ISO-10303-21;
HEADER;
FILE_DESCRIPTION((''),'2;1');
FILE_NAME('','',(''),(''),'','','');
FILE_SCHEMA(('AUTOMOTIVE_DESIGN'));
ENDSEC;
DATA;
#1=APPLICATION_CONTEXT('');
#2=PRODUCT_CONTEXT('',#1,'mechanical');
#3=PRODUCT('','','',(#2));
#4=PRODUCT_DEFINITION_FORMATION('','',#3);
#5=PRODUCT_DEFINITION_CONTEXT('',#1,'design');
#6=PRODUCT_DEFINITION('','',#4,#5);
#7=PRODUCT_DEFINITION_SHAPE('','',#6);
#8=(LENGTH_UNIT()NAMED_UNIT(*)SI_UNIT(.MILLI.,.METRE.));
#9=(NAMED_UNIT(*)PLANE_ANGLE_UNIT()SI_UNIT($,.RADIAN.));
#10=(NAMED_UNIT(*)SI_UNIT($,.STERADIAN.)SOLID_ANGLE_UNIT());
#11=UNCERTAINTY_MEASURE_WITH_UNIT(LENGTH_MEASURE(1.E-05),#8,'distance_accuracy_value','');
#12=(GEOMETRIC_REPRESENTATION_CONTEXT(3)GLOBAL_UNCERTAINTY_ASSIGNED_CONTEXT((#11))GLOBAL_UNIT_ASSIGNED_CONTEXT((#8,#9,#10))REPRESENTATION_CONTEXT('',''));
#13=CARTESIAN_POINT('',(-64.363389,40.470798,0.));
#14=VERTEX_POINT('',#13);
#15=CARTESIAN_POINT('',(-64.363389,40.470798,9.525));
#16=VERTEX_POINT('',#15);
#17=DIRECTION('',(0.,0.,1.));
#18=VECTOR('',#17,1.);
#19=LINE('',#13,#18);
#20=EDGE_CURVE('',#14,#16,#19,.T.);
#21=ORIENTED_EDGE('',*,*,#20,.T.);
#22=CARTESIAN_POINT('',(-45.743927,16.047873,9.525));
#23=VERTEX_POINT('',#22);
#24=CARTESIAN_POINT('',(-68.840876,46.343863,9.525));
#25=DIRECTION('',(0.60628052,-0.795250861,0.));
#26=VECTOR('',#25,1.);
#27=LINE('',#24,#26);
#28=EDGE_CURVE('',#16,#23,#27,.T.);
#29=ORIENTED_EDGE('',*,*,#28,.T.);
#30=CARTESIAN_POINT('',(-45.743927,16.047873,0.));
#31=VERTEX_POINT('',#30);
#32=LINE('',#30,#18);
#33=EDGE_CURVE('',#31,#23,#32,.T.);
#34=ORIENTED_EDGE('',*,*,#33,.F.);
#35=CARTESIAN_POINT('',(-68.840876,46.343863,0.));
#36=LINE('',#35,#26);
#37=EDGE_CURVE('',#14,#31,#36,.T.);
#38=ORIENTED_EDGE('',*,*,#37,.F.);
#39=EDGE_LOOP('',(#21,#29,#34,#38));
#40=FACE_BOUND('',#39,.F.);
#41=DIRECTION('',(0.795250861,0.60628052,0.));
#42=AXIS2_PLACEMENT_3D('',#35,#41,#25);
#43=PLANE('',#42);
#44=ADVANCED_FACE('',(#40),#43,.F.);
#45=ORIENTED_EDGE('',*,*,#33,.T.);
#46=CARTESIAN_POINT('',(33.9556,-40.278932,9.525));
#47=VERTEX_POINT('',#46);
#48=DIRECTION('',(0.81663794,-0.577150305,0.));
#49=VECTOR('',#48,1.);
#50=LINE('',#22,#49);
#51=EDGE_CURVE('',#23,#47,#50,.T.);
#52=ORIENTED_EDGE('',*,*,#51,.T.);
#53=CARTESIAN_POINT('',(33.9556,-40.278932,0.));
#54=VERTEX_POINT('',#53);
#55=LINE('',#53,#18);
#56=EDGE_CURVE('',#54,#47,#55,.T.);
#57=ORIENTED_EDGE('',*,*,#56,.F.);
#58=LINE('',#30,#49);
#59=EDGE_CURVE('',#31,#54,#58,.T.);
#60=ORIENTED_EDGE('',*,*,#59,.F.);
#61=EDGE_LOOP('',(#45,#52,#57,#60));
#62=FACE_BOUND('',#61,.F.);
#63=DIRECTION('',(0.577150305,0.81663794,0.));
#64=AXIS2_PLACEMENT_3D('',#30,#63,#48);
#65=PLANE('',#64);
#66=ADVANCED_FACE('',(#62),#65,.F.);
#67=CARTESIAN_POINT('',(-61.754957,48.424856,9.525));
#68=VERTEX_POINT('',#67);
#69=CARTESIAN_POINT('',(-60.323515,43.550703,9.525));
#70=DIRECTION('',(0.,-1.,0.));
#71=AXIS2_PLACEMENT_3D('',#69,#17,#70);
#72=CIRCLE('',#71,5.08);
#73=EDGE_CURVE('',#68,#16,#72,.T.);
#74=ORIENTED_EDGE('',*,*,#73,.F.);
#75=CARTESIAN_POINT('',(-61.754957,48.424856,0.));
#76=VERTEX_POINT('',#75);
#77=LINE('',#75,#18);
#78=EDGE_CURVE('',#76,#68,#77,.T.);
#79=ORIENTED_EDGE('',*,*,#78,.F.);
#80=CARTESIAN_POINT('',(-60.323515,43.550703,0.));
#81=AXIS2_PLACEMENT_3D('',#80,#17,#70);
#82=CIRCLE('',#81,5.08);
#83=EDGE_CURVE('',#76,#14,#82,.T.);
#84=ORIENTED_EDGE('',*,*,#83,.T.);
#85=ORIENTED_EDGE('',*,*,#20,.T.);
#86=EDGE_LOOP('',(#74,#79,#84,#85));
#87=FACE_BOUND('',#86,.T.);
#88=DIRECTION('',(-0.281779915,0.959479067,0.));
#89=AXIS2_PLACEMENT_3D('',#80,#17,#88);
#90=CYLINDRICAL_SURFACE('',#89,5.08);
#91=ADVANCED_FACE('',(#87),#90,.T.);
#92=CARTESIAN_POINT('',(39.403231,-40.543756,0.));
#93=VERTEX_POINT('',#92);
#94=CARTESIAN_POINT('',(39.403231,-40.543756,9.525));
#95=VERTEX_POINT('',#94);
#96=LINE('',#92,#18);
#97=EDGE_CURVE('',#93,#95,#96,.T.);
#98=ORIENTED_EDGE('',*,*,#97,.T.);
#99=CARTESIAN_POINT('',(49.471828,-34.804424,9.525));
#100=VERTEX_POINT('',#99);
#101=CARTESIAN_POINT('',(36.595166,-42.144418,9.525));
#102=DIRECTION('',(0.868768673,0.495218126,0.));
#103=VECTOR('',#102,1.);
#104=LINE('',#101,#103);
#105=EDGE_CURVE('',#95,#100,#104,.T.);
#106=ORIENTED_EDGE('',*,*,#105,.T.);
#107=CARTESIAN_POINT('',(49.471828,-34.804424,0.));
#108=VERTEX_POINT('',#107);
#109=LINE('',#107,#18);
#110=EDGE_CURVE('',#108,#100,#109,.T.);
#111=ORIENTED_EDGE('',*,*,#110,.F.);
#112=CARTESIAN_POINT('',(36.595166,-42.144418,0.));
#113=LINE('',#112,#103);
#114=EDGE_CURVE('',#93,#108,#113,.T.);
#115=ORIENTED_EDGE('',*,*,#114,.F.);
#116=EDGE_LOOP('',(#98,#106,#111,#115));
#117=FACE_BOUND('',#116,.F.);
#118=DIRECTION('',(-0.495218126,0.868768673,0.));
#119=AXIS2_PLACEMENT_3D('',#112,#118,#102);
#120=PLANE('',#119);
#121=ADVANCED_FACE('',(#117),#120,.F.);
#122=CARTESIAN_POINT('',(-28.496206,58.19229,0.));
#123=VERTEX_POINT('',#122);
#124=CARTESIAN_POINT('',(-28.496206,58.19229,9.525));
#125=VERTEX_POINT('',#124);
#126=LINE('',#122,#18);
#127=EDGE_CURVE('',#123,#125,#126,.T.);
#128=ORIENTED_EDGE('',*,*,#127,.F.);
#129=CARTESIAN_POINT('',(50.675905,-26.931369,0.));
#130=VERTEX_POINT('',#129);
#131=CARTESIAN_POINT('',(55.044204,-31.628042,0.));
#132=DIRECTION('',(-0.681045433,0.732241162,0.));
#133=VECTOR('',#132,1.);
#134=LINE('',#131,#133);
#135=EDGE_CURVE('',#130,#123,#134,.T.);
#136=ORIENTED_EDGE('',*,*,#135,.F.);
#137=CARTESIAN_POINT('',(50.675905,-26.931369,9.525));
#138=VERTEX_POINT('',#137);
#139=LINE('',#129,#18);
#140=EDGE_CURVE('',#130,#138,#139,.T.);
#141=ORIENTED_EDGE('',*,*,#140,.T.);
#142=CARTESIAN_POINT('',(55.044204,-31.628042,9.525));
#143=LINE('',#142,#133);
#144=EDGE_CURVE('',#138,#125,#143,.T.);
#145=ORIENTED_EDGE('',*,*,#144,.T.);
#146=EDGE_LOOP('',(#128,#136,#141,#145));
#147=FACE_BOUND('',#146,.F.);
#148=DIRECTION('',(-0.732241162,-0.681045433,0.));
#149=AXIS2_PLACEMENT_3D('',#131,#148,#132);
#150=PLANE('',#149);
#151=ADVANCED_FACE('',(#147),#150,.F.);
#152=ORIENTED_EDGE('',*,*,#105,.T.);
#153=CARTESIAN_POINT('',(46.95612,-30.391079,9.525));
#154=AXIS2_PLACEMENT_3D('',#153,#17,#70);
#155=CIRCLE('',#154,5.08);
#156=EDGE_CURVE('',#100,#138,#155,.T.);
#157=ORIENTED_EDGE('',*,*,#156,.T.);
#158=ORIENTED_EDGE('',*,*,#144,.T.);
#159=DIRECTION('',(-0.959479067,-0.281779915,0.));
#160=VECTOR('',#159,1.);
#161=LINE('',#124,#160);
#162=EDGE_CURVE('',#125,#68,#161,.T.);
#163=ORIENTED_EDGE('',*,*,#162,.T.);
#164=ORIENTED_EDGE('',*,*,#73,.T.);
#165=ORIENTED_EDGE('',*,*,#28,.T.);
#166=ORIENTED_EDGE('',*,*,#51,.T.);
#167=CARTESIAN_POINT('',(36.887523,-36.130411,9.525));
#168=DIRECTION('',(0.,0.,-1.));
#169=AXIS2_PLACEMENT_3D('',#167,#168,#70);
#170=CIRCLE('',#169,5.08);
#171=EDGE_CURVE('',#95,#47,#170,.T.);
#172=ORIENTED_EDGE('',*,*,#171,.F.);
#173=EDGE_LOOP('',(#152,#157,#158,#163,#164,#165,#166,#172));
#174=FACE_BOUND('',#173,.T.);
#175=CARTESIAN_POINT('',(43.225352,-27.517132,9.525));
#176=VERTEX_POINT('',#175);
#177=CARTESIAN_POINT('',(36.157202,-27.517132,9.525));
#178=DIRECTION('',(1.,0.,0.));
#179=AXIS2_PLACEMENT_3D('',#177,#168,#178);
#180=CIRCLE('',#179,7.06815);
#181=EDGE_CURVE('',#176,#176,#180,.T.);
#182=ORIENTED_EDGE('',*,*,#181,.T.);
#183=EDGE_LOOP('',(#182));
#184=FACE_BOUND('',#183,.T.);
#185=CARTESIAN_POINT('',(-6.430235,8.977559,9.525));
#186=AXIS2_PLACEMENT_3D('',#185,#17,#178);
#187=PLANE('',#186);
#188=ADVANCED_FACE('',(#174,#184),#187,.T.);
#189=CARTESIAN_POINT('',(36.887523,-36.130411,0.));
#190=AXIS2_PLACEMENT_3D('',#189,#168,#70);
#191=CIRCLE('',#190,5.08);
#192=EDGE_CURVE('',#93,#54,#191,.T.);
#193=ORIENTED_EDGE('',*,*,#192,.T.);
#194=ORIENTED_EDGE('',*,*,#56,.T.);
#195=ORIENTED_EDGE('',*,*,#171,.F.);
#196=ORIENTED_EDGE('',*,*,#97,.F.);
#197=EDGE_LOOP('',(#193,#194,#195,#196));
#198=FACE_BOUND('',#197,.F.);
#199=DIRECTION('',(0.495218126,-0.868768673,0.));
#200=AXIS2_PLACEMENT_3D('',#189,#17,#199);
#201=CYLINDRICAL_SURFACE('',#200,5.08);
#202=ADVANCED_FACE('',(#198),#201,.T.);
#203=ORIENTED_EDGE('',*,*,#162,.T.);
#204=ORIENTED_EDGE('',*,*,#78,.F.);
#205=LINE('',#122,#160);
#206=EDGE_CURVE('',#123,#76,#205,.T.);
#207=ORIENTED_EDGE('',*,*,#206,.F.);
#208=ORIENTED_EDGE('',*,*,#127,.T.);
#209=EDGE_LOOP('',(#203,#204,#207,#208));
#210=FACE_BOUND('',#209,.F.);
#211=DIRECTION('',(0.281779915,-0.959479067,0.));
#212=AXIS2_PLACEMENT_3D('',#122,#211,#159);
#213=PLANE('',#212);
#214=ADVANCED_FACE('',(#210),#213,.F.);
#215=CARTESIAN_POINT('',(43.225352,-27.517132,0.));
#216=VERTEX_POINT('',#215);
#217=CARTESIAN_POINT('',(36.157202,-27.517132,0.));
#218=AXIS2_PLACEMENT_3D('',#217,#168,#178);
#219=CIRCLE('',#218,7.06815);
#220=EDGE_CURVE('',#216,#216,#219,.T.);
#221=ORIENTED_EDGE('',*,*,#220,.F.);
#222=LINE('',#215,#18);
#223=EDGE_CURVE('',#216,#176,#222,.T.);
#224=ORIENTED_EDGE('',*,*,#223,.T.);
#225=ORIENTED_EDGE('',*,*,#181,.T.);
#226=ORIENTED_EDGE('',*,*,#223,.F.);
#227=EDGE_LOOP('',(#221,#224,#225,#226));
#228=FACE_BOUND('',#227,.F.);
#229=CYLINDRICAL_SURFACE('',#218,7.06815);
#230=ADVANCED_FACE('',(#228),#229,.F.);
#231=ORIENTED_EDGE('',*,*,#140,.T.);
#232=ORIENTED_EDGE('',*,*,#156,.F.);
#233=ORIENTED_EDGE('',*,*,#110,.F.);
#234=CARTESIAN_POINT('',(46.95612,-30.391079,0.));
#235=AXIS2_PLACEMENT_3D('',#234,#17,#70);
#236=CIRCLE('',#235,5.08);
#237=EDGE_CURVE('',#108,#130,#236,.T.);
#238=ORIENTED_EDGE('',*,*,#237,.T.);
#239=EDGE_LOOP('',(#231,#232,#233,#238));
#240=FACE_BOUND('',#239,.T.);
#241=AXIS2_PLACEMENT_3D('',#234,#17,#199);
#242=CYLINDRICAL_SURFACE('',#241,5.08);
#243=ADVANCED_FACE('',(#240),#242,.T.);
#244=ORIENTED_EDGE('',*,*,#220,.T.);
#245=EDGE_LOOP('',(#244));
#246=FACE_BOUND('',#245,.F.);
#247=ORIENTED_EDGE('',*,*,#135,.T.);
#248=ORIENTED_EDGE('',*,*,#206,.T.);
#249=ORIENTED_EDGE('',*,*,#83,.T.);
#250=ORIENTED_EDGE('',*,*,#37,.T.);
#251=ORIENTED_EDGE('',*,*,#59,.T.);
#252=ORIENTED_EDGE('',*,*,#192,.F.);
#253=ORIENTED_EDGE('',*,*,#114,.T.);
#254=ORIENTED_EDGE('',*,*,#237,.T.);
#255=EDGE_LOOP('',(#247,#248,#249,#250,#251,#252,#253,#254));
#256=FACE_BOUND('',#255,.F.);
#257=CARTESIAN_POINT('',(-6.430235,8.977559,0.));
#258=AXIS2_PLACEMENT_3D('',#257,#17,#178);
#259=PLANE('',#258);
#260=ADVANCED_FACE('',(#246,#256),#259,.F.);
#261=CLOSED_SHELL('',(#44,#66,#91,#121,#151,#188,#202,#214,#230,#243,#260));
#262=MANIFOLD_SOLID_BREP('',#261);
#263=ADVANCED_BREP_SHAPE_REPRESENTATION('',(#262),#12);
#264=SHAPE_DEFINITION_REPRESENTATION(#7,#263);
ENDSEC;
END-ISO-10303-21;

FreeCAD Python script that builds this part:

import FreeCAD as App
import Part
import Sketcher
Q = App.Units.Quantity


def edges_at(feature, points):
    """Names of the edges that pass closest to the given points."""
    edges = feature.Shape.Edges
    near = lambda p: min(range(len(edges)), key=lambda i: edges[i].distToShape(Part.Vertex(*p))[0])
    return sorted({f"Edge{near(p) + 1}" for p in points})


def add_polygon(sketch, points):
    """Adds a closed chain of lines whose ends are joined by coincident constraints."""
    first, n = sketch.GeometryCount, len(points)
    for a, b in zip(points, points[1:] + points[:1]):
        sketch.addGeometry(Part.LineSegment(App.Vector(*a, 0), App.Vector(*b, 0)), False)
    for i in range(n):
        sketch.addConstraint(Sketcher.Constraint("Coincident", first + i, 2, first + (i + 1) % n, 1))

doc = App.newDocument("Part")
body = doc.addObject("PartDesign::Body", "Body")

sketch1 = body.newObject("Sketcher::SketchObject", "Sketch")
sketch1.AttachmentSupport = (doc.getObject("XY_Plane"), [""])
sketch1.MapMode = "FlatFace"
add_polygon(sketch1, [(37, -42), (55, -32), (-28, 58), (-69, 46), (-46, 16)])
sketch1.addConstraint([
    Sketcher.Constraint("Distance", 1, Q("122.664959 mm")),
    Sketcher.Constraint("DistanceY", -1, 1, 1, 2, Q("58.19229 mm")),
    Sketcher.Constraint("DistanceY", 4, 2, -1, 1, Q("42.144418 mm")),
    Sketcher.Constraint("DistanceX", 1, 2, 0, 2, Q("83.54041 mm")),
    Sketcher.Constraint("DistanceX", 2, 2, 1, 2, Q("40.34467 mm")),
    Sketcher.Constraint("DistanceX", 2, 2, 3, 2, Q("23.096949 mm")),
    Sketcher.Constraint("DistanceY", 3, 2, 2, 2, Q("30.29599 mm")),
    Sketcher.Constraint("DistanceX", 4, 2, 0, 2, Q("18.449038 mm")),
    Sketcher.Constraint("DistanceY", 4, 2, 3, 2, Q("58.192291 mm")),
    Sketcher.Constraint("DistanceX", -1, 1, 0, 2, Q("55.044204 mm")),
])
pad1 = body.newObject("PartDesign::Pad", "Pad")
pad1.Profile = sketch1
pad1.Length = Q("0.375 in")
doc.recompute()

fillet = body.newObject("PartDesign::Fillet", "Fillet")
fillet.Base = (pad1, edges_at(pad1, [(-68.841, 46.344, 4.763)]))
fillet.Radius = Q("0.2 in")
doc.recompute()

fillet2 = body.newObject("PartDesign::Fillet", "Fillet001")
fillet2.Base = (fillet, edges_at(fillet, [(36.595, -42.144, 4.763)]))
fillet2.Radius = Q("0.2 in")
doc.recompute()

fillet3 = body.newObject("PartDesign::Fillet", "Fillet002")
fillet3.Base = (fillet2, edges_at(fillet2, [(55.044, -31.628, 4.763)]))
fillet3.Radius = Q("0.2 in")

sketch2 = body.newObject("Sketcher::SketchObject", "Sketch001")
sketch2.AttachmentSupport = (doc.getObject("XY_Plane"), [""])
sketch2.MapMode = "FlatFace"
sketch2.addGeometry(Part.Circle(App.Vector(36, -28, 0), App.Vector(0, 0, 1), 7), False)
sketch2.addConstraint([
    Sketcher.Constraint("Diameter", 0, Q("14.1363 mm")),
    Sketcher.Constraint("DistanceX", -1, 1, 0, 3, Q("36.157202 mm")),
    Sketcher.Constraint("DistanceY", 0, 3, -1, 1, Q("27.517132 mm")),
])
pocket1 = body.newObject("PartDesign::Pocket", "Pocket")
pocket1.Profile = sketch2
pocket1.Length = 75.62089
pocket1.Reversed = True

doc.recompute()
